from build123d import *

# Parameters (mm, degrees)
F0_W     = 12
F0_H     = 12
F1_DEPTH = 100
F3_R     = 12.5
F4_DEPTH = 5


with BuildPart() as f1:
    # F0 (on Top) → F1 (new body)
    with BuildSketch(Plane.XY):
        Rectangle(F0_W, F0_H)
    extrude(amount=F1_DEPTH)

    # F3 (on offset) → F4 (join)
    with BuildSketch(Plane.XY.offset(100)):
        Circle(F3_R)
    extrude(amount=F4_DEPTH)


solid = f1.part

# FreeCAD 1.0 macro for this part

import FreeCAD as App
import Part
import Sketcher

V = App.Vector
Q = App.Units.Quantity


def add_polygon(sketch, points):
    """Adds a closed chain of lines whose ends are joined by coincident constraints."""
    first, n = sketch.GeometryCount, len(points)
    for a, b in zip(points, points[1:] + points[:1]):
        sketch.addGeometry(Part.LineSegment(App.Vector(*a, 0), App.Vector(*b, 0)), False)
    for i in range(n):
        sketch.addConstraint(Sketcher.Constraint("Coincident", first + i, 2, first + (i + 1) % n, 1))

doc = App.newDocument("Part")
body = doc.addObject("PartDesign::Body", "Body")

# Sketch on XY plane
sketch1 = body.newObject("Sketcher::SketchObject", "Sketch")
sketch1.AttachmentSupport = (doc.getObject("XY_Plane"), [""])
sketch1.MapMode = "FlatFace"
add_polygon(sketch1, [(-6, 6), (-6, -6), (6, -6), (6, 6)])  # lines 0-3
sketch1.addConstraint([
    Sketcher.Constraint("Vertical", 0),
    Sketcher.Constraint("Horizontal", 1),
    Sketcher.Constraint("Vertical", 2),
    Sketcher.Constraint("Horizontal", 3),
    Sketcher.Constraint("Symmetric", 0, 2, 2, 2, -1, 1),
    Sketcher.Constraint("Equal", 3, 0),
    Sketcher.Constraint("DistanceX", 1, 1, 1, 2, Q("12 mm")),
])
pad1 = body.newObject("PartDesign::Pad", "Pad")
pad1.Profile = sketch1
pad1.Length = 100

# Sketch on XY plane
sketch2 = body.newObject("Sketcher::SketchObject", "Sketch001")
sketch2.AttachmentSupport = (doc.getObject("XY_Plane"), [""])
sketch2.MapMode = "FlatFace"
sketch2.AttachmentOffset = App.Placement(V(0, 0, 100), App.Rotation())
sketch2.addGeometry(Part.Circle(V(0, 0, 0), V(0, 0, 1), 12), False)
sketch2.addConstraint([
    Sketcher.Constraint("Coincident", 0, 3, -1, 1),
    Sketcher.Constraint("Diameter", 0, Q("25 mm")),
])
pad2 = body.newObject("PartDesign::Pad", "Pad001")
pad2.Profile = sketch2
pad2.Length = 5

doc.recompute()
